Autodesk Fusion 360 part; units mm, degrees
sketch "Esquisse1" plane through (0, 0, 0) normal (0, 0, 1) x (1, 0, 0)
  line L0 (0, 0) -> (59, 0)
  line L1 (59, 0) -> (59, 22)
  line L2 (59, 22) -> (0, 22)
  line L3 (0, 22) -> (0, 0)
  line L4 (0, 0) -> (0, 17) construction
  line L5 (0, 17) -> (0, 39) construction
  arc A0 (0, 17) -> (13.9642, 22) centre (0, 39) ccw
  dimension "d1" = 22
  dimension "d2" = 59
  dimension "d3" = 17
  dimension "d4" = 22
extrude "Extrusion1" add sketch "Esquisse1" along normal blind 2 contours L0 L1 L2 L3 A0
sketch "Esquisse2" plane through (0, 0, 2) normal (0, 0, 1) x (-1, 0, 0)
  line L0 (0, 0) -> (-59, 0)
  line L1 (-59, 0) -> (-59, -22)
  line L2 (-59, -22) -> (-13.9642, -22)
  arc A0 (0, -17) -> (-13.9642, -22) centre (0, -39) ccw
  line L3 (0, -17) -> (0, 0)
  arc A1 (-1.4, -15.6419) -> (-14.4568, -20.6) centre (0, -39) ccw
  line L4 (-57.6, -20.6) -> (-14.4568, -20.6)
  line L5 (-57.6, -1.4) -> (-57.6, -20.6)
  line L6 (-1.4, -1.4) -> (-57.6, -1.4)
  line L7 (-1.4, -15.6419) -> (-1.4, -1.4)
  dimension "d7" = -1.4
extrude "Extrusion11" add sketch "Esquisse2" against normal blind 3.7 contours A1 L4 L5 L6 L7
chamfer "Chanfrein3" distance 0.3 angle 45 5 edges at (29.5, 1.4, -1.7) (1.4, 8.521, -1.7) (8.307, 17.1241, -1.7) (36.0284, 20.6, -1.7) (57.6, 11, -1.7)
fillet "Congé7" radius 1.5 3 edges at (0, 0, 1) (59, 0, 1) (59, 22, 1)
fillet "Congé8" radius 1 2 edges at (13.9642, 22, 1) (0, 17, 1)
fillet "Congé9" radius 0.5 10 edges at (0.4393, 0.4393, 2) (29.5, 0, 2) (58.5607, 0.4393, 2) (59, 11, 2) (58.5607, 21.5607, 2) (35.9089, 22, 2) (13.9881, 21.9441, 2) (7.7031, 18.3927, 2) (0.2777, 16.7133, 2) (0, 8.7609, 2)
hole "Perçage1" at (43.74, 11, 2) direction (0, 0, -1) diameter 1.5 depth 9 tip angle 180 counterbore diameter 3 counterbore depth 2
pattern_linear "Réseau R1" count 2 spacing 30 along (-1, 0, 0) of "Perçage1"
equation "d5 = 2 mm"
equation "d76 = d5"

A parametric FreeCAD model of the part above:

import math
import FreeCAD as App
import Part
import Sketcher
from FreeCAD import Vector
Q = App.Units.Quantity


def edges_at(feature, points):
    """Names of the edges that pass closest to the given points."""
    edges = feature.Shape.Edges
    near = lambda p: min(range(len(edges)), key=lambda i: edges[i].distToShape(Part.Vertex(*p))[0])
    return sorted({f"Edge{near(p) + 1}" for p in points})

doc = App.newDocument("Part")
body = doc.addObject("PartDesign::Body", "Body")

# Sketch on XY plane
sketch1 = body.newObject("Sketcher::SketchObject", "Sketch")
sketch1.AttachmentSupport = (doc.getObject("XY_Plane"), [""])
sketch1.MapMode = "FlatFace"
sketch1.addGeometry([
    Part.LineSegment(Vector(0, 17, 0), Vector(0, 0, 0)),  # 0
    Part.LineSegment(Vector(0, 0, 0), Vector(59, 0, 0)),  # 1
    Part.LineSegment(Vector(59, 0, 0), Vector(59, 22, 0)),  # 2
    Part.LineSegment(Vector(59, 22, 0), Vector(14, 22, 0)),  # 3
    Part.ArcOfCircle(Part.Circle(Vector(0, 39, 0), Vector(0, 0, 1), 22), math.radians(-90), math.radians(-51)),  # 4
], False)
sketch1.addConstraint([
    Sketcher.Constraint("Coincident", 0, 2, 1, 1),
    Sketcher.Constraint("Coincident", 1, 2, 2, 1),
    Sketcher.Constraint("Coincident", 2, 2, 3, 1),
    Sketcher.Constraint("Coincident", 3, 2, 4, 2),
    Sketcher.Constraint("Coincident", 4, 1, 0, 1),
    Sketcher.Constraint("Vertical", 0),
    Sketcher.Constraint("Horizontal", 1),
    Sketcher.Constraint("Vertical", 2),
    Sketcher.Constraint("Horizontal", 3),
    Sketcher.Constraint("Coincident", 0, 2, -1, 1),
    Sketcher.Constraint("PointOnObject", 4, 3, -2),
    Sketcher.Constraint("Radius", 4, Q("22 mm")),
    Sketcher.Constraint("DistanceX", 1, 1, 1, 2, Q("59 mm")),
    Sketcher.Constraint("DistanceY", 0, 2, 0, 1, Q("17 mm")),
    Sketcher.Constraint("DistanceY", 2, 1, 2, 2, Q("22 mm")),
])
pad1 = body.newObject("PartDesign::Pad", "Pad")
pad1.Profile = sketch1
pad1.Length = 2

# Sketch on XY plane
sketch2 = body.newObject("Sketcher::SketchObject", "Sketch001")
sketch2.AttachmentSupport = (doc.getObject("XY_Plane"), [""])
sketch2.MapMode = "FlatFace"
sketch2.AttachmentOffset = App.Placement(Vector(0, 0, 2), App.Rotation())
sketch2.addGeometry([
    Part.ArcOfCircle(Part.Circle(Vector(0, 39, 0), Vector(0, 0, 1), 23), math.radians(-87), math.radians(-52)),  # 0
    Part.LineSegment(Vector(1, 16, 0), Vector(1, 1, 0)),  # 1
    Part.LineSegment(Vector(1, 1, 0), Vector(58, 1, 0)),  # 2
    Part.LineSegment(Vector(58, 1, 0), Vector(58, 21, 0)),  # 3
    Part.LineSegment(Vector(58, 21, 0), Vector(14, 21, 0)),  # 4
], False)
sketch2.addConstraint([
    Sketcher.Constraint("Coincident", 0, 1, 1, 1),
    Sketcher.Constraint("Coincident", 1, 2, 2, 1),
    Sketcher.Constraint("Coincident", 2, 2, 3, 1),
    Sketcher.Constraint("Coincident", 3, 2, 4, 1),
    Sketcher.Constraint("Coincident", 4, 2, 0, 2),
    Sketcher.Constraint("Vertical", 1),
    Sketcher.Constraint("Horizontal", 2),
    Sketcher.Constraint("Vertical", 3),
    Sketcher.Constraint("Horizontal", 4),
    Sketcher.Constraint("PointOnObject", 0, 3, -2),
    Sketcher.Constraint("DistanceX", -1, 1, 0, 1, Q("1.4 mm")),
    Sketcher.Constraint("DistanceY", -1, 1, 1, 2, Q("1.4 mm")),
    Sketcher.Constraint("Radius", 0, Q("23.4 mm")),
    Sketcher.Constraint("DistanceX", 2, 1, 2, 2, Q("56.2 mm")),
    Sketcher.Constraint("DistanceY", 3, 1, 3, 2, Q("19.2 mm")),
    Sketcher.Constraint("DistanceY", -1, 1, 0, 3, Q("39 mm")),
])
pad2 = body.newObject("PartDesign::Pad", "Pad001")
pad2.Profile = sketch2
pad2.Length = 3.7
pad2.Reversed = True
doc.recompute()

chamfer = body.newObject("PartDesign::Chamfer", "Chamfer")
chamfer.Base = (pad2, edges_at(pad2, [
    (29.5, 1.4, -1.7),
    (1.4, 8.521, -1.7),
    (8.307, 17.124, -1.7),
    (36.028, 20.6, -1.7),
    (57.6, 11, -1.7),
]))
chamfer.Size = 0.3
doc.recompute()

fillet = body.newObject("PartDesign::Fillet", "Fillet")
fillet.Base = (chamfer, edges_at(chamfer, [(0, 0, 1), (59, 0, 1), (59, 22, 1)]))
fillet.Radius = 1.5
doc.recompute()

fillet2 = body.newObject("PartDesign::Fillet", "Fillet001")
fillet2.Base = (fillet, edges_at(fillet, [(13.964, 22, 1), (0, 17, 1)]))
fillet2.Radius = 1
doc.recompute()

fillet3 = body.newObject("PartDesign::Fillet", "Fillet002")
fillet3.Base = (fillet2, edges_at(fillet2, [
    (0.439, 0.439, 2),
    (29.5, 0, 2),
    (58.561, 0.439, 2),
    (59, 11, 2),
    (58.561, 21.561, 2),
    (35.909, 22, 2),
    (13.988, 21.944, 2),
    (7.703, 18.393, 2),
    (0.278, 16.713, 2),
    (0, 8.761, 2),
]))
fillet3.Radius = 0.5

# Sketch on XY plane
sketch3 = body.newObject("Sketcher::SketchObject", "Sketch002")
sketch3.AttachmentSupport = (doc.getObject("XY_Plane"), [""])
sketch3.MapMode = "FlatFace"
sketch3.AttachmentOffset = App.Placement(Vector(0, 0, 2), App.Rotation())
sketch3.addGeometry(Part.Circle(Vector(43.7, 11, 0), Vector(0, 0, 1), 0.8), False)
sketch3.addConstraint([
    Sketcher.Constraint("Diameter", 0, Q("1.5 mm")),
    Sketcher.Constraint("DistanceY", -1, 1, 0, 3, Q("11 mm")),
    Sketcher.Constraint("DistanceX", -1, 1, 0, 3, Q("43.74 mm")),
])
doc.recompute()
hole = body.newObject("PartDesign::Hole", "Hole")
hole.Profile = sketch3
hole.ThreadType = "None"
hole.Diameter = 1.5
hole.DepthType = "Dimension"
hole.Depth = 9
hole.DrillPoint = "Flat"
hole.HoleCutType = "Counterbore"
hole.HoleCutDiameter = 3
hole.HoleCutDepth = 2
doc.recompute()

linearpattern = body.newObject("PartDesign::LinearPattern", "LinearPattern")
linearpattern.Originals = [hole]
linearpattern.Direction = (doc.getObject("X_Axis"), [""])
linearpattern.Mode = "offset"
linearpattern.Offset = 30
linearpattern.Occurrences = 2
linearpattern.Reversed = True
body.Tip = linearpattern

doc.recompute()
